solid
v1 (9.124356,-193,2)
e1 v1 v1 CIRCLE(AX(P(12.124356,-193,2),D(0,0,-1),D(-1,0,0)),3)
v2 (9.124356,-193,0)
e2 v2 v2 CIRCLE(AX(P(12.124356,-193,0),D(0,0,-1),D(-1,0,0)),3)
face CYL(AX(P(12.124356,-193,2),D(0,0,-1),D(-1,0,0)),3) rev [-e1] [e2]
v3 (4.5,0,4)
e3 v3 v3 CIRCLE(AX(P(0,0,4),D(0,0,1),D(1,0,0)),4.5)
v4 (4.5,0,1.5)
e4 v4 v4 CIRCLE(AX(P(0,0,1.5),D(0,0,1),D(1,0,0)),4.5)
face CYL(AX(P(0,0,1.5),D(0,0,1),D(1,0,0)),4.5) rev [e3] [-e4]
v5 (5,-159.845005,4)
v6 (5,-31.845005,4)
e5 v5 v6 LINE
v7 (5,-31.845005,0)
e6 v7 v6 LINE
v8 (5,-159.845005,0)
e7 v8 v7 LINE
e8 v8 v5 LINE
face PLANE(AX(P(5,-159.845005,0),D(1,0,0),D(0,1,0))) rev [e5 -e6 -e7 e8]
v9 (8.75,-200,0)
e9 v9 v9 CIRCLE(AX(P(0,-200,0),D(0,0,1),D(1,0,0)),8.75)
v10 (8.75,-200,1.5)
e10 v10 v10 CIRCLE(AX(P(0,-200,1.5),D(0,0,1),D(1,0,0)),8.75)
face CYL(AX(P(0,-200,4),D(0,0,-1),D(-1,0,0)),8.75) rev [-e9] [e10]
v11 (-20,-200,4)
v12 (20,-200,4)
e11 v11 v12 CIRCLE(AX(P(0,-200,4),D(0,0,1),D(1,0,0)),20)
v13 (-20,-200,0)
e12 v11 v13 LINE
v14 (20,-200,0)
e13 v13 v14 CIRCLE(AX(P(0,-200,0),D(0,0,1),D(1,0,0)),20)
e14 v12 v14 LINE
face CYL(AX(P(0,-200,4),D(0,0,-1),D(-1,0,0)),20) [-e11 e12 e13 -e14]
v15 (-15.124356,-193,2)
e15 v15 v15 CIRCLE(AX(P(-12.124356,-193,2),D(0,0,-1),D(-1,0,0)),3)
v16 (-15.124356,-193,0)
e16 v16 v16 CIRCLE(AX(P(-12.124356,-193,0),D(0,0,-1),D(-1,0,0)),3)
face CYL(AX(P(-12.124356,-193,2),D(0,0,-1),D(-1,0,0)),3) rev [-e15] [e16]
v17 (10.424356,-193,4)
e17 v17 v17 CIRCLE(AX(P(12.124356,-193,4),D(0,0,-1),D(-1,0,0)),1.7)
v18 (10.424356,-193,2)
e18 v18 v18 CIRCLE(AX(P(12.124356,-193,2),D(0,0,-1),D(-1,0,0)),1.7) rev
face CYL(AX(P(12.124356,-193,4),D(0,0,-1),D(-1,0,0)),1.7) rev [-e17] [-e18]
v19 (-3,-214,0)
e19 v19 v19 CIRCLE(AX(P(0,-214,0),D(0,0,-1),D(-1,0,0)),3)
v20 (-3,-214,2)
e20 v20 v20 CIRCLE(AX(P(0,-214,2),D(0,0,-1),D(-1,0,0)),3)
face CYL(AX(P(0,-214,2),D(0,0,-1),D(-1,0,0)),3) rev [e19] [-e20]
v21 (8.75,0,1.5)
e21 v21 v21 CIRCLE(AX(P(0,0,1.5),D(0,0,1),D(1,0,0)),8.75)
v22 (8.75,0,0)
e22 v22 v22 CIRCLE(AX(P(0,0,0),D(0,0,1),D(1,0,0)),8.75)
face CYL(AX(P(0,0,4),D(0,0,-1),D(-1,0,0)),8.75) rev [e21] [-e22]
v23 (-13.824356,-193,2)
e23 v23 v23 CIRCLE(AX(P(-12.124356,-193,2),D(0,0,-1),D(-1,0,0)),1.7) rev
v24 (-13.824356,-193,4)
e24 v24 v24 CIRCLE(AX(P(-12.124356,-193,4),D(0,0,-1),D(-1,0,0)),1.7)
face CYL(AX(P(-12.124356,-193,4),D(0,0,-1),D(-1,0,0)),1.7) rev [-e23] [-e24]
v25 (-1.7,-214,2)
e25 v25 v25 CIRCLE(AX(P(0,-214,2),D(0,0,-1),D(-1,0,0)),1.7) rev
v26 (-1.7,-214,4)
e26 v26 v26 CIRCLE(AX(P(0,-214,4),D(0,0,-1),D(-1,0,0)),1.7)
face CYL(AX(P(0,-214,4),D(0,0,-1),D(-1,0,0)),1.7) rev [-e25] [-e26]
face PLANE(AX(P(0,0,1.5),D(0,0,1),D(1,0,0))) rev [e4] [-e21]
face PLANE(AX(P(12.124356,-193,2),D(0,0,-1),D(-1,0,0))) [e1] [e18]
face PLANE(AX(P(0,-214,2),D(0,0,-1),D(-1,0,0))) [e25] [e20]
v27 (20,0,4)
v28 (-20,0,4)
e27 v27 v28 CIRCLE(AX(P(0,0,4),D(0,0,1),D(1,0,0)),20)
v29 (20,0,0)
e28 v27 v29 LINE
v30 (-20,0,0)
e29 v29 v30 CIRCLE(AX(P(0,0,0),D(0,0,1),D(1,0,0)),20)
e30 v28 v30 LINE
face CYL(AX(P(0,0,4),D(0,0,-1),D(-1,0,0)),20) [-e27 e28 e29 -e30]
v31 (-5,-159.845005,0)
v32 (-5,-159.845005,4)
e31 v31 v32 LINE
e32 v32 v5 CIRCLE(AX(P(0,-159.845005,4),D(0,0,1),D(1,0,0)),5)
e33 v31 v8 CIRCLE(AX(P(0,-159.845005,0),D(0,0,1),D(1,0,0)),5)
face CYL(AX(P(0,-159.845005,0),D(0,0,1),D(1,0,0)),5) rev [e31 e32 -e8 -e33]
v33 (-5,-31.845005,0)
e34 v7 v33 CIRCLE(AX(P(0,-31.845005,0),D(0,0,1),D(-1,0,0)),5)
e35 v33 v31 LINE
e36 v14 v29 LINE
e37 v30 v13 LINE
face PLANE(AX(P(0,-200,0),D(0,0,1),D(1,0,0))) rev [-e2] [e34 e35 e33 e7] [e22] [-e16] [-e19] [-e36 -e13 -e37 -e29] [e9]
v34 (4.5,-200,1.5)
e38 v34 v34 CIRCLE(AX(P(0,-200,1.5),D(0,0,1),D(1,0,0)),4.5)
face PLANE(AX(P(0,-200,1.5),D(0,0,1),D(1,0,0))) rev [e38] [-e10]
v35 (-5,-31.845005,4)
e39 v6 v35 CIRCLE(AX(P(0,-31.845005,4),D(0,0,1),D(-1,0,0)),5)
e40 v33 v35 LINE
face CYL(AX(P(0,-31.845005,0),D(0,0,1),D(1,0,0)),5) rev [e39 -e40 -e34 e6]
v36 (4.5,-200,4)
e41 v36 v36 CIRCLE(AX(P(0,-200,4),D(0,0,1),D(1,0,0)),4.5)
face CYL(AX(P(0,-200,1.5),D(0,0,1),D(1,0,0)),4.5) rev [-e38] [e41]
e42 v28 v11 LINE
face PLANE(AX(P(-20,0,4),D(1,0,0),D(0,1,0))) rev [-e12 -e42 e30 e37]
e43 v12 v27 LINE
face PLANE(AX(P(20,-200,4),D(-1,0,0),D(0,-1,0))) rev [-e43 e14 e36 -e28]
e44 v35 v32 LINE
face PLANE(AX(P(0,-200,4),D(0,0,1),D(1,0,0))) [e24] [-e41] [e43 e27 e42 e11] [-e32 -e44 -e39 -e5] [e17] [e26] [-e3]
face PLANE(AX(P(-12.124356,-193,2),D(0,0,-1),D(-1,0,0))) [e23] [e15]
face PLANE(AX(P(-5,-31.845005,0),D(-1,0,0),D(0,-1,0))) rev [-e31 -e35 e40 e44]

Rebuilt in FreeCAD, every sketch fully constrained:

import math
import FreeCAD as App
import Part
import Sketcher

V = App.Vector
Q = App.Units.Quantity

doc = App.newDocument("Part")
body = doc.addObject("PartDesign::Body", "Body")

# Sketch on XY plane
sketch1 = body.newObject("Sketcher::SketchObject", "Sketch")
sketch1.AttachmentSupport = (doc.getObject("XY_Plane"), [""])
sketch1.MapMode = "FlatFace"
sketch1.addGeometry(Part.LineSegment(V(-20, 0, 0), V(-20, -200, 0)), False)
sketch1.addGeometry(Part.ArcOfCircle(Part.Circle(V(0, -200, 0), V(0, 0, 1), 20), math.radians(180), math.radians(360)), False)
sketch1.addGeometry(Part.LineSegment(V(20, -200, 0), V(20, 0, 0)), False)
sketch1.addGeometry(Part.ArcOfCircle(Part.Circle(V(0, 0, 0), V(0, 0, 1), 20), math.radians(0), math.radians(180)), False)
sketch1.addGeometry(Part.Circle(V(0, -200, 0), V(0, 0, 1), 9), False)
sketch1.addGeometry(Part.Circle(V(0, 0, 0), V(0, 0, 1), 9), False)
sketch1.addConstraint(Sketcher.Constraint("Tangent", 0, 2, 1, 1))
sketch1.addConstraint(Sketcher.Constraint("Tangent", 1, 2, 2, 1))
sketch1.addConstraint(Sketcher.Constraint("Tangent", 2, 2, 3, 1))
sketch1.addConstraint(Sketcher.Constraint("Tangent", 3, 2, 0, 1))
sketch1.addConstraint(Sketcher.Constraint("Vertical", 0))
sketch1.addConstraint(Sketcher.Constraint("Vertical", 2))
sketch1.addConstraint(Sketcher.Constraint("Coincident", 3, 3, -1, 1))
sketch1.addConstraint(Sketcher.Constraint("Coincident", 5, 3, -1, 1))
sketch1.addConstraint(Sketcher.Constraint("Coincident", 4, 3, 1, 3))
sketch1.addConstraint(Sketcher.Constraint("Equal", 4, 5))
sketch1.addConstraint(Sketcher.Constraint("Radius", 1, Q("20 mm")))
sketch1.addConstraint(Sketcher.Constraint("Diameter", 4, Q("17.5 mm")))
sketch1.addConstraint(Sketcher.Constraint("DistanceY", 0, 2, 0, 1, Q("200 mm")))
pad1 = body.newObject("PartDesign::Pad", "Pad")
pad1.Profile = sketch1
pad1.Length = 4

# Sketch on XY plane
sketch2 = body.newObject("Sketcher::SketchObject", "Sketch001")
sketch2.AttachmentSupport = (doc.getObject("XY_Plane"), [""])
sketch2.MapMode = "FlatFace"
sketch2.AttachmentOffset = App.Placement(V(0, 0, 1.5), App.Rotation())
sketch2.addGeometry(Part.Circle(V(0, 0, 0), V(0, 0, 1), 8.8), False)
sketch2.addGeometry(Part.Circle(V(0, 0, 0), V(0, 0, 1), 4.5), False)
sketch2.addGeometry(Part.Circle(V(0, -200, 0), V(0, 0, 1), 8.8), False)
sketch2.addGeometry(Part.Circle(V(0, -200, 0), V(0, 0, 1), 4.5), False)
sketch2.addConstraint(Sketcher.Constraint("Coincident", 0, 3, -1, 1))
sketch2.addConstraint(Sketcher.Constraint("Coincident", 1, 3, -1, 1))
sketch2.addConstraint(Sketcher.Constraint("Coincident", 3, 3, 2, 3))
sketch2.addConstraint(Sketcher.Constraint("Equal", 0, 2))
sketch2.addConstraint(Sketcher.Constraint("Equal", 1, 3))
sketch2.addConstraint(Sketcher.Constraint("PointOnObject", 2, 3, -2))
sketch2.addConstraint(Sketcher.Constraint("Diameter", 1, Q("9 mm")))
sketch2.addConstraint(Sketcher.Constraint("Diameter", 0, Q("17.5 mm")))
sketch2.addConstraint(Sketcher.Constraint("DistanceY", 2, 3, -1, 1, Q("200 mm")))
pad2 = body.newObject("PartDesign::Pad", "Pad001")
pad2.Profile = sketch2
pad2.Length = 2.5

# Sketch on XY plane
sketch3 = body.newObject("Sketcher::SketchObject", "Sketch002")
sketch3.AttachmentSupport = (doc.getObject("XY_Plane"), [""])
sketch3.MapMode = "FlatFace"
sketch3.AttachmentOffset = App.Placement(V(0, 0, 4), App.Rotation())
sketch3.addGeometry(Part.LineSegment(V(-5, -32, 0), V(-5, -160, 0)), False)
sketch3.addGeometry(Part.ArcOfCircle(Part.Circle(V(0, -160, 0), V(0, 0, 1), 5), math.radians(180), math.radians(360)), False)
sketch3.addGeometry(Part.LineSegment(V(5, -160, 0), V(5, -32, 0)), False)
sketch3.addGeometry(Part.ArcOfCircle(Part.Circle(V(0, -32, 0), V(0, 0, 1), 5), math.radians(0), math.radians(180)), False)
sketch3.addConstraint(Sketcher.Constraint("Tangent", 0, 2, 1, 1))
sketch3.addConstraint(Sketcher.Constraint("Tangent", 1, 2, 2, 1))
sketch3.addConstraint(Sketcher.Constraint("Tangent", 2, 2, 3, 1))
sketch3.addConstraint(Sketcher.Constraint("Tangent", 3, 2, 0, 1))
sketch3.addConstraint(Sketcher.Constraint("Vertical", 0))
sketch3.addConstraint(Sketcher.Constraint("Vertical", 2))
sketch3.addConstraint(Sketcher.Constraint("PointOnObject", 1, 3, -2))
sketch3.addConstraint(Sketcher.Constraint("Radius", 1, Q("5 mm")))
sketch3.addConstraint(Sketcher.Constraint("DistanceY", 0, 2, 0, 1, Q("128 mm")))
sketch3.addConstraint(Sketcher.Constraint("DistanceY", 1, 3, -1, 1, Q("159.845005 mm")))
pocket1 = body.newObject("PartDesign::Pocket", "Pocket")
pocket1.Profile = sketch3
pocket1.Type = "ThroughAll"

# Sketch on XY plane
sketch4 = body.newObject("Sketcher::SketchObject", "Sketch003")
sketch4.AttachmentSupport = (doc.getObject("XY_Plane"), [""])
sketch4.MapMode = "FlatFace"
sketch4.addGeometry(Part.Circle(V(0, -214, 0), V(0, 0, 1), 1.7), False)
sketch4.addGeometry(Part.Circle(V(12.1, -193, 0), V(0, 0, 1), 1.7), False)
sketch4.addGeometry(Part.Circle(V(-12.1, -193, 0), V(0, 0, 1), 1.7), False)
sketch4.addConstraint(Sketcher.Constraint("Equal", 0, 1))
sketch4.addConstraint(Sketcher.Constraint("Equal", 1, 2))
sketch4.addConstraint(Sketcher.Constraint("Symmetric", 1, 3, 2, 3, -2))
sketch4.addConstraint(Sketcher.Constraint("PointOnObject", 0, 3, -2))
sketch4.addConstraint(Sketcher.Constraint("Diameter", 0, Q("3.4 mm")))
sketch4.addConstraint(Sketcher.Constraint("DistanceY", 0, 3, -1, 1, Q("214 mm")))
sketch4.addConstraint(Sketcher.Constraint("DistanceY", 1, 3, -1, 1, Q("193 mm")))
sketch4.addConstraint(Sketcher.Constraint("DistanceX", 2, 3, 1, 3, Q("24.248711 mm")))
pocket2 = body.newObject("PartDesign::Pocket", "Pocket001")
pocket2.Profile = sketch4
pocket2.Type = "ThroughAll"
pocket2.Reversed = True

# Sketch on XY plane
sketch5 = body.newObject("Sketcher::SketchObject", "Sketch004")
sketch5.AttachmentSupport = (doc.getObject("XY_Plane"), [""])
sketch5.MapMode = "FlatFace"
sketch5.addGeometry(Part.Circle(V(12.1, -193, 0), V(0, 0, 1), 3), False)
sketch5.addGeometry(Part.Circle(V(-12.1, -193, 0), V(0, 0, 1), 3), False)
sketch5.addGeometry(Part.Circle(V(0, -214, 0), V(0, 0, 1), 3), False)
sketch5.addConstraint(Sketcher.Constraint("Equal", 0, 1))
sketch5.addConstraint(Sketcher.Constraint("Equal", 1, 2))
sketch5.addConstraint(Sketcher.Constraint("Symmetric", 0, 3, 1, 3, -2))
sketch5.addConstraint(Sketcher.Constraint("PointOnObject", 2, 3, -2))
sketch5.addConstraint(Sketcher.Constraint("Diameter", 0, Q("6 mm")))
sketch5.addConstraint(Sketcher.Constraint("DistanceY", 0, 3, -1, 1, Q("193 mm")))
sketch5.addConstraint(Sketcher.Constraint("DistanceY", 2, 3, -1, 1, Q("214 mm")))
sketch5.addConstraint(Sketcher.Constraint("DistanceX", 1, 3, 0, 3, Q("24.248711 mm")))
pocket3 = body.newObject("PartDesign::Pocket", "Pocket002")
pocket3.Profile = sketch5
pocket3.Length = 2
pocket3.Reversed = True

doc.recompute()
